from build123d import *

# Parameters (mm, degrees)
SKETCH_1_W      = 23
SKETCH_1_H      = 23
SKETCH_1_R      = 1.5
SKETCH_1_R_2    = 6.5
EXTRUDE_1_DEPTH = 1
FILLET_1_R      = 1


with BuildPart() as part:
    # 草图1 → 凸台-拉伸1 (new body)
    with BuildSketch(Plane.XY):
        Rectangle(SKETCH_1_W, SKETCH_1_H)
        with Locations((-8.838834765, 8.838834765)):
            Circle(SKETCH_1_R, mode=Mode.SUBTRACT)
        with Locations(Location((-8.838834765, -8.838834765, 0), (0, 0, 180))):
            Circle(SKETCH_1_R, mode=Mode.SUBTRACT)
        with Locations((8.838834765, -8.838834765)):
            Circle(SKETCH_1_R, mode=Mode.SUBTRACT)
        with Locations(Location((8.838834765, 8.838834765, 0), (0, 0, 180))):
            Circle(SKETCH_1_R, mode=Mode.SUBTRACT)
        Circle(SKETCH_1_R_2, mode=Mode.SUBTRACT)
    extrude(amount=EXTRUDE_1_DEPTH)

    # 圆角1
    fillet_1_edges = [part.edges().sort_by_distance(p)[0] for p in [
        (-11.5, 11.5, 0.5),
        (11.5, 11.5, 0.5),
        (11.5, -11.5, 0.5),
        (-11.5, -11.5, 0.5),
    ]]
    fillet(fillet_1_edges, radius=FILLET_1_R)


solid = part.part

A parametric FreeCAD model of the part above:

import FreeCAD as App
import Part
import Sketcher

V = App.Vector


def edges_at(feature, points):
    """Names of the edges that pass closest to the given points."""
    edges = feature.Shape.Edges
    near = lambda p: min(range(len(edges)), key=lambda i: edges[i].distToShape(Part.Vertex(*p))[0])
    return sorted({f"Edge{near(p) + 1}" for p in points})


def add_polygon(sketch, points):
    """Adds a closed chain of lines whose ends are joined by coincident constraints."""
    first, n = sketch.GeometryCount, len(points)
    for a, b in zip(points, points[1:] + points[:1]):
        sketch.addGeometry(Part.LineSegment(App.Vector(*a, 0), App.Vector(*b, 0)), False)
    for i in range(n):
        sketch.addConstraint(Sketcher.Constraint("Coincident", first + i, 2, first + (i + 1) % n, 1))

doc = App.newDocument("Part")
body = doc.addObject("PartDesign::Body", "Body")

# Sketch on XY plane
sketch1 = body.newObject("Sketcher::SketchObject", "Sketch")
sketch1.AttachmentSupport = (doc.getObject("XY_Plane"), [""])
sketch1.MapMode = "FlatFace"
add_polygon(sketch1, [(-11.5, 11.5), (-11.5, -11.5), (11.5, -11.5), (11.5, 11.5)])  # lines 0-3
sketch1.addGeometry(Part.Circle(V(-8.8, -8.8, 0), V(0, 0, 1), 1.5), False)  # 4
sketch1.addGeometry(Part.Circle(V(8.8, -8.8, 0), V(0, 0, 1), 1.5), False)  # 5
sketch1.addGeometry(Part.Circle(V(-8.8, 8.8, 0), V(0, 0, 1), 1.5), False)  # 6
sketch1.addGeometry(Part.Circle(V(0, 0, 0), V(0, 0, 1), 6.5), False)  # 7
sketch1.addGeometry(Part.Circle(V(8.8, 8.8, 0), V(0, 0, 1), 1.5), False)  # 8
sketch1.addConstraint([
    Sketcher.Constraint("Vertical", 0),
    Sketcher.Constraint("Horizontal", 1),
    Sketcher.Constraint("Vertical", 2),
    Sketcher.Constraint("Horizontal", 3),
    Sketcher.Constraint("Coincident", 7, 3, -1, 1),
    Sketcher.Constraint("Equal", 4, 5),
    Sketcher.Constraint("Equal", 5, 6),
    Sketcher.Constraint("Equal", 6, 8),
    Sketcher.Constraint("Symmetric", 5, 3, 6, 3, -1, 1),
    Sketcher.Constraint("Symmetric", 4, 3, 8, 3, -1, 1),
    Sketcher.Constraint("Symmetric", 0, 2, 2, 2, -1, 1),
    Sketcher.Constraint("Symmetric", 4, 3, 5, 3, -2),
    Sketcher.Constraint("Equal", 3, 0),
    Sketcher.Constraint("Diameter", 4, 3.0),
    Sketcher.Constraint("Diameter", 7, 13.0),
    Sketcher.Constraint("DistanceX", 1, 1, 1, 2, 23.0),
    Sketcher.Constraint("DistanceX", 4, 3, 5, 3, 17.67767),
    Sketcher.Constraint("DistanceY", 4, 3, 6, 3, 17.67767),
])
pad1 = body.newObject("PartDesign::Pad", "Pad")
pad1.Profile = sketch1
pad1.Length = 1
doc.recompute()

fillet = body.newObject("PartDesign::Fillet", "Fillet")
fillet.Base = (pad1, edges_at(pad1, [
    (-11.5, 11.5, 0.5),
    (11.5, 11.5, 0.5),
    (11.5, -11.5, 0.5),
    (-11.5, -11.5, 0.5),
]))
fillet.Radius = 1

doc.recompute()
